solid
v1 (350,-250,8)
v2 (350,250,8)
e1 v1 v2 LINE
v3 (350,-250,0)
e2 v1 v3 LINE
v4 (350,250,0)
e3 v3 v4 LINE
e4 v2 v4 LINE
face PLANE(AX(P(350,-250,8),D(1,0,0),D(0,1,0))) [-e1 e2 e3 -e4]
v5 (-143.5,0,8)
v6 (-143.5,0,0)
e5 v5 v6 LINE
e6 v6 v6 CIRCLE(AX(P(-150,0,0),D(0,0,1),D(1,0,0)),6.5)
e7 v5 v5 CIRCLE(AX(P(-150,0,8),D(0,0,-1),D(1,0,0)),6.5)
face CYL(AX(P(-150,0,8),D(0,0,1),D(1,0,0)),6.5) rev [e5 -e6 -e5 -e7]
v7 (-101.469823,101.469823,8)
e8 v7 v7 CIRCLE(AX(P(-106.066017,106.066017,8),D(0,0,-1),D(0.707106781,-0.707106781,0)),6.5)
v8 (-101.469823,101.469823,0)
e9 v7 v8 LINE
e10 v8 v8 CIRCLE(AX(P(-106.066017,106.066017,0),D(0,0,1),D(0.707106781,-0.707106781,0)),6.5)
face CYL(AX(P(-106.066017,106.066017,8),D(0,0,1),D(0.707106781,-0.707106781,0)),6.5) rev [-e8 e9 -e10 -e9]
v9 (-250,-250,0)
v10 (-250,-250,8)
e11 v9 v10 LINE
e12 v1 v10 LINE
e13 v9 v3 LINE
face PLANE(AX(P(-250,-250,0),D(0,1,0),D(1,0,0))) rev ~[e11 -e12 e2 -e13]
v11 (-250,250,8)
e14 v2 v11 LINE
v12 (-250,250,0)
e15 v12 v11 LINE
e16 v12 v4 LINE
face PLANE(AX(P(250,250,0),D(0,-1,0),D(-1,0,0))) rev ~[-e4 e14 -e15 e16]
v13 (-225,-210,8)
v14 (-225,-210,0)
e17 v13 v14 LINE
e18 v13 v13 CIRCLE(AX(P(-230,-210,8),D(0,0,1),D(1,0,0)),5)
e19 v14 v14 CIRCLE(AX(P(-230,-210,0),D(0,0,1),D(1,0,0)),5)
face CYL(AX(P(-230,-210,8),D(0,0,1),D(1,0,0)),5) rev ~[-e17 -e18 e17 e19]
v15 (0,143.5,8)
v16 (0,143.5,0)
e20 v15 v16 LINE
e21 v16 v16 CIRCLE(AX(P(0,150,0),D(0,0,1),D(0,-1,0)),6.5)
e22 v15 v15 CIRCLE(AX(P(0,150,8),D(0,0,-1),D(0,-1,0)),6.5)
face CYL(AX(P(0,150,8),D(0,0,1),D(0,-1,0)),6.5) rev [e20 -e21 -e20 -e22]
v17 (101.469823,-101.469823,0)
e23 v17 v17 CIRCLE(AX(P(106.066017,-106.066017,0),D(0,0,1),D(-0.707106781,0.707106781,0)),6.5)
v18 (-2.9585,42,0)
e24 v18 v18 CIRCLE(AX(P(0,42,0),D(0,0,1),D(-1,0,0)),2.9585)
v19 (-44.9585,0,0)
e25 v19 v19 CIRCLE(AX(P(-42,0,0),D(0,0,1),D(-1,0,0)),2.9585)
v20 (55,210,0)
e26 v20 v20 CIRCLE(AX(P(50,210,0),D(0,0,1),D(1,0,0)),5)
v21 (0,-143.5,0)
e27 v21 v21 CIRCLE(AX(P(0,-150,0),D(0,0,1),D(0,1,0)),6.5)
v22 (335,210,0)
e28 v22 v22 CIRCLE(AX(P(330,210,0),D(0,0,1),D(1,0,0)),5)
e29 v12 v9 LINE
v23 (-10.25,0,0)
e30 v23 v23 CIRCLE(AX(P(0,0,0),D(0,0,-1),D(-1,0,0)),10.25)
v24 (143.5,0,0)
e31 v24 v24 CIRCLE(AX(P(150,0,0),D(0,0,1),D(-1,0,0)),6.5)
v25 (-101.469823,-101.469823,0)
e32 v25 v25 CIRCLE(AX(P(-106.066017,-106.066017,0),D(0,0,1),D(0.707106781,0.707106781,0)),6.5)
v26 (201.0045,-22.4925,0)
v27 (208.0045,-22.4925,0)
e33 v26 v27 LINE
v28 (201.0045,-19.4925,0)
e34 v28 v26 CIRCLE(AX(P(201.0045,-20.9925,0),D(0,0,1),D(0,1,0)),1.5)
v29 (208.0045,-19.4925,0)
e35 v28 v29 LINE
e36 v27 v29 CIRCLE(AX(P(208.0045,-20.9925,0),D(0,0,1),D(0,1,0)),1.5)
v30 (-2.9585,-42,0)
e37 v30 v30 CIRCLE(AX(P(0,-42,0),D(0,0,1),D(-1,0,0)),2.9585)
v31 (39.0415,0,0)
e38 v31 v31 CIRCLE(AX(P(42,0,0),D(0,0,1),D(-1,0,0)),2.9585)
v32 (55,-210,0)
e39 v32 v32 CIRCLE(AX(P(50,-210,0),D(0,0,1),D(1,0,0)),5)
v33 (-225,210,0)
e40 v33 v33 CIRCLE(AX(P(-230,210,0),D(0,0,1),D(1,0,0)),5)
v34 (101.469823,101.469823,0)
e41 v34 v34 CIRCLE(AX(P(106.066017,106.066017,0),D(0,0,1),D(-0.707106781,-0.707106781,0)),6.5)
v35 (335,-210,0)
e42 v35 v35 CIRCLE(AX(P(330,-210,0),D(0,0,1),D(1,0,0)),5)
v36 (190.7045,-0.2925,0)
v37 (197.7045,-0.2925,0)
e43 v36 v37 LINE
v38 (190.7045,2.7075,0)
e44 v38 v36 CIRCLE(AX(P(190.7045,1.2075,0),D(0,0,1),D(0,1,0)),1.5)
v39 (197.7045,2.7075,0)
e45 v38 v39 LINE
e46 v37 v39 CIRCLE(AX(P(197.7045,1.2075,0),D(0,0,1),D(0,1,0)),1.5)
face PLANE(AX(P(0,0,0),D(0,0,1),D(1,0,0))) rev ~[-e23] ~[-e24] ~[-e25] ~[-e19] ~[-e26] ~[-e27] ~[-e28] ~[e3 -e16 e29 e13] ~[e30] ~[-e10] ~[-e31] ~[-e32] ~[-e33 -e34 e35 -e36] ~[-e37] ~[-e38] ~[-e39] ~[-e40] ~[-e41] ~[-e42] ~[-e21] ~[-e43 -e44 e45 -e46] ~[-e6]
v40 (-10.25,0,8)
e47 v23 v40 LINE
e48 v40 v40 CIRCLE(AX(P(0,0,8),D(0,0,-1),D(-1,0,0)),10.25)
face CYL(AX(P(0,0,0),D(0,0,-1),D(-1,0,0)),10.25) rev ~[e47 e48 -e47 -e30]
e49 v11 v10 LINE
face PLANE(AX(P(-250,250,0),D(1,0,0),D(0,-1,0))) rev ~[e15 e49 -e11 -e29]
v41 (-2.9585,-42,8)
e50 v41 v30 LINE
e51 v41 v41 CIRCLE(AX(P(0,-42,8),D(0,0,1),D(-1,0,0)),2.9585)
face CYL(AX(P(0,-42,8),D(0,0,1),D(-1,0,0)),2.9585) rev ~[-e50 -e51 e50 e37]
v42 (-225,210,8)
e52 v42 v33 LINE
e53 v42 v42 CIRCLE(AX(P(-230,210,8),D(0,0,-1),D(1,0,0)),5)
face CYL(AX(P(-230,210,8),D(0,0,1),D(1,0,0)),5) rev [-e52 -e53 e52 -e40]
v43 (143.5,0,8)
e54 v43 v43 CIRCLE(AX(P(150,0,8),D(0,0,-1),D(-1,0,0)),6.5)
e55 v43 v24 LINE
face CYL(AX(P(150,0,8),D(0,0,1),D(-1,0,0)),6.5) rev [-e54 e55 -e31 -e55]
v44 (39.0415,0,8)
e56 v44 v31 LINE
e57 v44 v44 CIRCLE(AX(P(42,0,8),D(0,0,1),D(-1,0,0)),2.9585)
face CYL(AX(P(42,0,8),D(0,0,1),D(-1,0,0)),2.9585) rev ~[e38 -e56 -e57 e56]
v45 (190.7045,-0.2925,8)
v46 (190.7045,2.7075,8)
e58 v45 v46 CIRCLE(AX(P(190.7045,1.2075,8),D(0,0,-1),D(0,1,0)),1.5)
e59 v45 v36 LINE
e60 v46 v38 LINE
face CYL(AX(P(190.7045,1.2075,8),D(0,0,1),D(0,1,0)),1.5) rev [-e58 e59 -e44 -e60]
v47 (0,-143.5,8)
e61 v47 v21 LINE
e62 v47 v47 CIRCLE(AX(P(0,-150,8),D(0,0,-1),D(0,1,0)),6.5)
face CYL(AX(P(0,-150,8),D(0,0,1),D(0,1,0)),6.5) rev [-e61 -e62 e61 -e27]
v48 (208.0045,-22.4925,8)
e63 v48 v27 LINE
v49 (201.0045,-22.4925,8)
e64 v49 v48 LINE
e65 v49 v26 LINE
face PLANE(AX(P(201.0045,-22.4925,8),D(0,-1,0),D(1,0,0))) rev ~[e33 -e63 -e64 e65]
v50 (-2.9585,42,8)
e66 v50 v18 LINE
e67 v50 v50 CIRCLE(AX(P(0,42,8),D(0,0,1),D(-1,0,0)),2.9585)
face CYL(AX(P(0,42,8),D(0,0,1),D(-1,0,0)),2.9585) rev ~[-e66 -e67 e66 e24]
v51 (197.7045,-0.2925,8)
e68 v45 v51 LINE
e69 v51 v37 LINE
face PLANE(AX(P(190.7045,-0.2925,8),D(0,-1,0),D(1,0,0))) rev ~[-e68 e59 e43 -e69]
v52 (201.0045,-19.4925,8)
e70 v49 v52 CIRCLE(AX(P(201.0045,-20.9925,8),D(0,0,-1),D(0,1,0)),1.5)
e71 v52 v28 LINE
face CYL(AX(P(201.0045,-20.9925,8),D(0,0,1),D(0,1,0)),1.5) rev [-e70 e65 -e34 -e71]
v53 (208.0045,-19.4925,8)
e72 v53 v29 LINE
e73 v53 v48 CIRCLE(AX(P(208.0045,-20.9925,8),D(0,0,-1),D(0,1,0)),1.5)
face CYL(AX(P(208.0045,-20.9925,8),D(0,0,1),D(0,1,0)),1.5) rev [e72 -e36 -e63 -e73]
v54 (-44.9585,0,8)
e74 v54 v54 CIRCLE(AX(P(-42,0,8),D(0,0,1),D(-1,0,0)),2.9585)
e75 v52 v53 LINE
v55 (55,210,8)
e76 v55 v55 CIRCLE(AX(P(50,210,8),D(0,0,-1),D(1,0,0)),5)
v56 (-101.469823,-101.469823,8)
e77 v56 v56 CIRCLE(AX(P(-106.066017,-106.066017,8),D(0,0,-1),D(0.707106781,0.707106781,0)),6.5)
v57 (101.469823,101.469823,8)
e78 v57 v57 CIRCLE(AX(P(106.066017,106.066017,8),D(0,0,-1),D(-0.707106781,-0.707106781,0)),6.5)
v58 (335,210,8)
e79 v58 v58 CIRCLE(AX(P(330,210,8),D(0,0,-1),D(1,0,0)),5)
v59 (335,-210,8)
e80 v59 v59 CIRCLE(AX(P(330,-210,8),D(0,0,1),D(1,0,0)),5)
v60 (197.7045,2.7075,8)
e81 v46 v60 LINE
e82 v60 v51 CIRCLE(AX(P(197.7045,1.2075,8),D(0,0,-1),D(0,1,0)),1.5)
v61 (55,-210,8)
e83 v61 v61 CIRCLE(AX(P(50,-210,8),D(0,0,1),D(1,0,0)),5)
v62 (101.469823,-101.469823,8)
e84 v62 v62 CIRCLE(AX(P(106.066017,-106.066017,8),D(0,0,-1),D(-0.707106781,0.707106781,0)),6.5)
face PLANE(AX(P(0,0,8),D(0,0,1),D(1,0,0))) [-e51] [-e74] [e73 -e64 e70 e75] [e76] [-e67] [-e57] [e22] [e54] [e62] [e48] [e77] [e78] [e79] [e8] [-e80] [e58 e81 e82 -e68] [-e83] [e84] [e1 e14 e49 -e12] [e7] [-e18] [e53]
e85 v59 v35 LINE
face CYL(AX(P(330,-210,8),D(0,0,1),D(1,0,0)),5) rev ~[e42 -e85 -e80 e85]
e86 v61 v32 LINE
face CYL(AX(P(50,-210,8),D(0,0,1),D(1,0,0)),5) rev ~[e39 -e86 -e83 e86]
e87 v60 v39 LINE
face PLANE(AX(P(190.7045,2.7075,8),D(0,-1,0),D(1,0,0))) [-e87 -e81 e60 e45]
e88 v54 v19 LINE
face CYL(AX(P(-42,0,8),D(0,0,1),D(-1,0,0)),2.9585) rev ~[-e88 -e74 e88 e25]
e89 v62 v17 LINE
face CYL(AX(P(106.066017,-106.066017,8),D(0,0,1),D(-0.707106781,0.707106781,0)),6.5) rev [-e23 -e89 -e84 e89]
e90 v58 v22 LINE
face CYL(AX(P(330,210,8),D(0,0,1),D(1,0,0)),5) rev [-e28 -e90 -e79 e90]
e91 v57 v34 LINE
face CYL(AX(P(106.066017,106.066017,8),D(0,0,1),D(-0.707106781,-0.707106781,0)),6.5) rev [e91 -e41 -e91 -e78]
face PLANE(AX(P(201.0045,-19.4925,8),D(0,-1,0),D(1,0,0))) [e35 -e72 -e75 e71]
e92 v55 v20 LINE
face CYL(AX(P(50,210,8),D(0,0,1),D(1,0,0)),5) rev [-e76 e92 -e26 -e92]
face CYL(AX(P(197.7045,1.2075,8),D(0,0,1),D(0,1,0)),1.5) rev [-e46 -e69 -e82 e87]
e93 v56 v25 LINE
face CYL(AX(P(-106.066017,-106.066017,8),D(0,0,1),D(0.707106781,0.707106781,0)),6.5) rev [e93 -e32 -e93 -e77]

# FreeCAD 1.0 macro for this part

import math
import FreeCAD as App
import Part
import Sketcher

V = App.Vector


def add_polygon(sketch, points):
    """Adds a closed chain of lines whose ends are joined by coincident constraints."""
    first, n = sketch.GeometryCount, len(points)
    for a, b in zip(points, points[1:] + points[:1]):
        sketch.addGeometry(Part.LineSegment(App.Vector(*a, 0), App.Vector(*b, 0)), False)
    for i in range(n):
        sketch.addConstraint(Sketcher.Constraint("Coincident", first + i, 2, first + (i + 1) % n, 1))

doc = App.newDocument("Part")
params = doc.addObject("Spreadsheet::Sheet", "Params")
for row, (alias, value) in enumerate([
    ("sketch1_width", "500 mm"),
    ("pad1_length", "8 mm"),
    ("sketch2_diameter", "13 mm"),
    ("hole_diameter", "13 mm"),
    ("sketch3_diameter", "20.5 mm"),
    ("sketch5_width", "100 mm"),
    ("sketch5_height", "500 mm"),
    ("pad2_length", "8 mm"),
    ("sketch6_diameter", "10 mm"),
    ("sketch7_radius", "1.5 mm"),
    ("sketch7_width", "7 mm"),
], start=1):
    params.set(f"A{row}", alias)
    params.set(f"B{row}", "=" + value)
    params.setAlias(f"B{row}", alias)

body = doc.addObject("PartDesign::Body", "Body")

# Sketch on XY plane
sketch1 = doc.addObject("Sketcher::SketchObject", "Sketch")
body.addObject(sketch1)
sketch1.AttachmentSupport = (doc.XY_Plane, [""])
sketch1.MapMode = "FlatFace"
add_polygon(sketch1, [(-250, 250), (-250, -250), (250, -250), (250, 250)])  # lines 0-3
sketch1.addConstraint([
    Sketcher.Constraint("Vertical", 0),
    Sketcher.Constraint("Horizontal", 1),
    Sketcher.Constraint("Vertical", 2),
    Sketcher.Constraint("Horizontal", 3),
    Sketcher.Constraint("Symmetric", 0, 2, 2, 2, -1, 1),
    Sketcher.Constraint("Equal", 3, 0),
    Sketcher.Constraint("DistanceX", 1, 1, 1, 2, 500.0),
])
sketch1.setExpression("Constraints[10]", "Params.sketch1_width")
pad1 = doc.addObject("PartDesign::Pad", "Pad")
body.addObject(pad1)
pad1.Profile = sketch1
pad1.setExpression("Length", "Params.pad1_length")

# Sketch on XY plane
sketch2 = doc.addObject("Sketcher::SketchObject", "Sketch001")
body.addObject(sketch2)
sketch2.AttachmentSupport = (doc.XY_Plane, [""])
sketch2.MapMode = "FlatFace"
sketch2.AttachmentOffset = App.Placement(V(0, 0, 8), App.Rotation())
sketch2.addGeometry(Part.Circle(V(0, 150, 0), V(0, 0, 1), 6.5), False)
sketch2.addConstraint([
    Sketcher.Constraint("PointOnObject", 0, 3, -2),
    Sketcher.Constraint("Diameter", 0, 13.0),
    Sketcher.Constraint("DistanceY", -1, 1, 0, 3, 150.0),
])
sketch2.setExpression("Constraints[1]", "Params.sketch2_diameter")
doc.recompute()
hole = doc.addObject("PartDesign::Hole", "Hole")
body.addObject(hole)
hole.Profile = sketch2
hole.ThreadType = "None"
hole.setExpression("Diameter", "Params.hole_diameter")
hole.DepthType = "ThroughAll"
doc.recompute()

polarpattern = doc.addObject("PartDesign::PolarPattern", "PolarPattern")
body.addObject(polarpattern)
polarpattern.Originals = [hole]
polarpattern.Axis = (doc.Z_Axis, [""])
polarpattern.Angle = 360
polarpattern.Occurrences = 8
body.Tip = polarpattern

# Sketch on XY plane
sketch3 = doc.addObject("Sketcher::SketchObject", "Sketch002")
body.addObject(sketch3)
sketch3.AttachmentSupport = (doc.XY_Plane, [""])
sketch3.MapMode = "FlatFace"
sketch3.addGeometry(Part.Circle(V(0, 0, 0), V(0, 0, 1), 10.25), False)
sketch3.addConstraint([
    Sketcher.Constraint("Coincident", 0, 3, -1, 1),
    Sketcher.Constraint("Diameter", 0, 20.5),
])
sketch3.setExpression("Constraints[1]", "Params.sketch3_diameter")
pocket1 = doc.addObject("PartDesign::Pocket", "Pocket")
body.addObject(pocket1)
pocket1.Profile = sketch3
pocket1.Type = "ThroughAll"
pocket1.Reversed = True

# Sketch on XY plane
sketch4 = doc.addObject("Sketcher::SketchObject", "Sketch003")
body.addObject(sketch4)
sketch4.AttachmentSupport = (doc.XY_Plane, [""])
sketch4.MapMode = "FlatFace"
sketch4.AttachmentOffset = App.Placement(V(0, 0, 8), App.Rotation())
sketch4.addGeometry([
    Part.Circle(V(0, -42, 0), V(0, 0, 1), 2.9585),
    Part.Circle(V(-42, 0, 0), V(0, 0, 1), 2.9585),
    Part.Circle(V(0, 42, 0), V(0, 0, 1), 2.9585),
    Part.Circle(V(42, 0, 0), V(0, 0, 1), 2.9585),
], False)
sketch4.addConstraint([
    Sketcher.Constraint("Equal", 0, 1),
    Sketcher.Constraint("Equal", 1, 2),
    Sketcher.Constraint("Equal", 2, 3),
    Sketcher.Constraint("Symmetric", 0, 3, 2, 3, -1, 1),
    Sketcher.Constraint("Symmetric", 1, 3, 3, 3, -1, 1),
    Sketcher.Constraint("PointOnObject", 0, 3, -2),
    Sketcher.Constraint("PointOnObject", 1, 3, -1),
    Sketcher.Constraint("Diameter", 0, 5.917),
    Sketcher.Constraint("DistanceY", 0, 3, -1, 1, 42.0),
    Sketcher.Constraint("DistanceX", 1, 3, -1, 1, 42.0),
])
pocket2 = doc.addObject("PartDesign::Pocket", "Pocket001")
body.addObject(pocket2)
pocket2.Profile = sketch4
pocket2.Type = "ThroughAll"

# Sketch on XY plane
sketch5 = doc.addObject("Sketcher::SketchObject", "Sketch004")
body.addObject(sketch5)
sketch5.AttachmentSupport = (doc.XY_Plane, [""])
sketch5.MapMode = "FlatFace"
sketch5.AttachmentOffset = App.Placement(V(0, 0, 8), App.Rotation())
add_polygon(sketch5, [(250, 250), (250, -250), (350, -250), (350, 250)])  # lines 0-3
sketch5.addConstraint([
    Sketcher.Constraint("Vertical", 0),
    Sketcher.Constraint("Horizontal", 1),
    Sketcher.Constraint("Vertical", 2),
    Sketcher.Constraint("Horizontal", 3),
    Sketcher.Constraint("DistanceX", 1, 1, 1, 2, 100.0),
    Sketcher.Constraint("DistanceY", 0, 2, 0, 1, 500.0),
    Sketcher.Constraint("DistanceX", -1, 1, 0, 2, 250.0),
    Sketcher.Constraint("DistanceY", 0, 2, -1, 1, 250.0),
])
sketch5.setExpression("Constraints[8]", "Params.sketch5_width")
sketch5.setExpression("Constraints[9]", "Params.sketch5_height")
pad2 = doc.addObject("PartDesign::Pad", "Pad001")
body.addObject(pad2)
pad2.Profile = sketch5
pad2.setExpression("Length", "Params.pad2_length")
pad2.Reversed = True

# Sketch on XY plane
sketch6 = doc.addObject("Sketcher::SketchObject", "Sketch005")
body.addObject(sketch6)
sketch6.AttachmentSupport = (doc.XY_Plane, [""])
sketch6.MapMode = "FlatFace"
sketch6.AttachmentOffset = App.Placement(V(0, 0, 8), App.Rotation())
sketch6.addGeometry([
    Part.Circle(V(-230, -210, 0), V(0, 0, 1), 5),
    Part.Circle(V(50, -210, 0), V(0, 0, 1), 5),
    Part.Circle(V(330, -210, 0), V(0, 0, 1), 5),
], False)
sketch6.addConstraint([
    Sketcher.Constraint("Equal", 0, 1),
    Sketcher.Constraint("Equal", 1, 2),
    Sketcher.Constraint("Horizontal", 0, 3, 1, 3),
    Sketcher.Constraint("Horizontal", 1, 3, 2, 3),
    Sketcher.Constraint("Diameter", 0, 10.0),
    Sketcher.Constraint("DistanceX", 0, 3, -1, 1, 230.0),
    Sketcher.Constraint("DistanceY", 0, 3, -1, 1, 210.0),
    Sketcher.Constraint("DistanceX", -1, 1, 1, 3, 50.0),
    Sketcher.Constraint("DistanceX", -1, 1, 2, 3, 330.0),
])
sketch6.setExpression("Constraints[4]", "Params.sketch6_diameter")
pocket3 = doc.addObject("PartDesign::Pocket", "Pocket002")
body.addObject(pocket3)
pocket3.Profile = sketch6
pocket3.Type = "ThroughAll"
doc.recompute()

mirrored = doc.addObject("PartDesign::Mirrored", "Mirrored")
body.addObject(mirrored)
mirrored.Originals = [pocket3]
mirrored.MirrorPlane = (doc.XZ_Plane, [""])
body.Tip = mirrored

# Sketch on XY plane
sketch7 = doc.addObject("Sketcher::SketchObject", "Sketch006")
body.addObject(sketch7)
sketch7.AttachmentSupport = (doc.XY_Plane, [""])
sketch7.MapMode = "FlatFace"
sketch7.AttachmentOffset = App.Placement(V(0, 0, 8), App.Rotation())
sketch7.addGeometry([
    Part.ArcOfCircle(Part.Circle(V(190.7045, 1.2075, 0), V(0, 0, 1), 1.5), math.radians(90), math.radians(270)),  # 0
    Part.LineSegment(V(190.7045, -0.2925, 0), V(197.7045, -0.2925, 0)),  # 1
    Part.ArcOfCircle(Part.Circle(V(197.7045, 1.2075, 0), V(0, 0, 1), 1.5), math.radians(-90), math.radians(90)),  # 2
    Part.LineSegment(V(197.7045, 2.7075, 0), V(190.7045, 2.7075, 0)),  # 3
    Part.LineSegment(V(208.0045, -19.4925, 0), V(201.0045, -19.4925, 0)),  # 4
    Part.ArcOfCircle(Part.Circle(V(201.0045, -20.9925, 0), V(0, 0, 1), 1.5), math.radians(90), math.radians(270)),  # 5
    Part.LineSegment(V(201.0045, -22.4925, 0), V(208.0045, -22.4925, 0)),  # 6
    Part.ArcOfCircle(Part.Circle(V(208.0045, -20.9925, 0), V(0, 0, 1), 1.5), math.radians(-90), math.radians(90)),  # 7
], False)
sketch7.addConstraint([
    Sketcher.Constraint("Tangent", 0, 2, 1, 1),
    Sketcher.Constraint("Tangent", 1, 2, 2, 1),
    Sketcher.Constraint("Tangent", 2, 2, 3, 1),
    Sketcher.Constraint("Tangent", 3, 2, 0, 1),
    Sketcher.Constraint("Tangent", 4, 2, 5, 1),
    Sketcher.Constraint("Tangent", 5, 2, 6, 1),
    Sketcher.Constraint("Tangent", 6, 2, 7, 1),
    Sketcher.Constraint("Tangent", 7, 2, 4, 1),
    Sketcher.Constraint("Horizontal", 1),
    Sketcher.Constraint("Horizontal", 3),
    Sketcher.Constraint("Horizontal", 4),
    Sketcher.Constraint("Horizontal", 6),
    Sketcher.Constraint("Equal", 2, 5),
    Sketcher.Constraint("Equal", 3, 4),
    Sketcher.Constraint("Radius", 0, 1.5),
    Sketcher.Constraint("DistanceX", 1, 1, 1, 2, 7.0),
    Sketcher.Constraint("DistanceX", 2, 3, 5, 3, 3.3),
    Sketcher.Constraint("DistanceY", 5, 3, 2, 3, 22.2),
    Sketcher.Constraint("DistanceX", -1, 1, 0, 3, 190.7045),
    Sketcher.Constraint("DistanceY", -1, 1, 0, 3, 1.2075),
])
sketch7.setExpression("Constraints[14]", "Params.sketch7_radius")
sketch7.setExpression("Constraints[15]", "Params.sketch7_width")
pocket4 = doc.addObject("PartDesign::Pocket", "Pocket003")
body.addObject(pocket4)
pocket4.Profile = sketch7
pocket4.Type = "ThroughAll"

doc.recompute()
